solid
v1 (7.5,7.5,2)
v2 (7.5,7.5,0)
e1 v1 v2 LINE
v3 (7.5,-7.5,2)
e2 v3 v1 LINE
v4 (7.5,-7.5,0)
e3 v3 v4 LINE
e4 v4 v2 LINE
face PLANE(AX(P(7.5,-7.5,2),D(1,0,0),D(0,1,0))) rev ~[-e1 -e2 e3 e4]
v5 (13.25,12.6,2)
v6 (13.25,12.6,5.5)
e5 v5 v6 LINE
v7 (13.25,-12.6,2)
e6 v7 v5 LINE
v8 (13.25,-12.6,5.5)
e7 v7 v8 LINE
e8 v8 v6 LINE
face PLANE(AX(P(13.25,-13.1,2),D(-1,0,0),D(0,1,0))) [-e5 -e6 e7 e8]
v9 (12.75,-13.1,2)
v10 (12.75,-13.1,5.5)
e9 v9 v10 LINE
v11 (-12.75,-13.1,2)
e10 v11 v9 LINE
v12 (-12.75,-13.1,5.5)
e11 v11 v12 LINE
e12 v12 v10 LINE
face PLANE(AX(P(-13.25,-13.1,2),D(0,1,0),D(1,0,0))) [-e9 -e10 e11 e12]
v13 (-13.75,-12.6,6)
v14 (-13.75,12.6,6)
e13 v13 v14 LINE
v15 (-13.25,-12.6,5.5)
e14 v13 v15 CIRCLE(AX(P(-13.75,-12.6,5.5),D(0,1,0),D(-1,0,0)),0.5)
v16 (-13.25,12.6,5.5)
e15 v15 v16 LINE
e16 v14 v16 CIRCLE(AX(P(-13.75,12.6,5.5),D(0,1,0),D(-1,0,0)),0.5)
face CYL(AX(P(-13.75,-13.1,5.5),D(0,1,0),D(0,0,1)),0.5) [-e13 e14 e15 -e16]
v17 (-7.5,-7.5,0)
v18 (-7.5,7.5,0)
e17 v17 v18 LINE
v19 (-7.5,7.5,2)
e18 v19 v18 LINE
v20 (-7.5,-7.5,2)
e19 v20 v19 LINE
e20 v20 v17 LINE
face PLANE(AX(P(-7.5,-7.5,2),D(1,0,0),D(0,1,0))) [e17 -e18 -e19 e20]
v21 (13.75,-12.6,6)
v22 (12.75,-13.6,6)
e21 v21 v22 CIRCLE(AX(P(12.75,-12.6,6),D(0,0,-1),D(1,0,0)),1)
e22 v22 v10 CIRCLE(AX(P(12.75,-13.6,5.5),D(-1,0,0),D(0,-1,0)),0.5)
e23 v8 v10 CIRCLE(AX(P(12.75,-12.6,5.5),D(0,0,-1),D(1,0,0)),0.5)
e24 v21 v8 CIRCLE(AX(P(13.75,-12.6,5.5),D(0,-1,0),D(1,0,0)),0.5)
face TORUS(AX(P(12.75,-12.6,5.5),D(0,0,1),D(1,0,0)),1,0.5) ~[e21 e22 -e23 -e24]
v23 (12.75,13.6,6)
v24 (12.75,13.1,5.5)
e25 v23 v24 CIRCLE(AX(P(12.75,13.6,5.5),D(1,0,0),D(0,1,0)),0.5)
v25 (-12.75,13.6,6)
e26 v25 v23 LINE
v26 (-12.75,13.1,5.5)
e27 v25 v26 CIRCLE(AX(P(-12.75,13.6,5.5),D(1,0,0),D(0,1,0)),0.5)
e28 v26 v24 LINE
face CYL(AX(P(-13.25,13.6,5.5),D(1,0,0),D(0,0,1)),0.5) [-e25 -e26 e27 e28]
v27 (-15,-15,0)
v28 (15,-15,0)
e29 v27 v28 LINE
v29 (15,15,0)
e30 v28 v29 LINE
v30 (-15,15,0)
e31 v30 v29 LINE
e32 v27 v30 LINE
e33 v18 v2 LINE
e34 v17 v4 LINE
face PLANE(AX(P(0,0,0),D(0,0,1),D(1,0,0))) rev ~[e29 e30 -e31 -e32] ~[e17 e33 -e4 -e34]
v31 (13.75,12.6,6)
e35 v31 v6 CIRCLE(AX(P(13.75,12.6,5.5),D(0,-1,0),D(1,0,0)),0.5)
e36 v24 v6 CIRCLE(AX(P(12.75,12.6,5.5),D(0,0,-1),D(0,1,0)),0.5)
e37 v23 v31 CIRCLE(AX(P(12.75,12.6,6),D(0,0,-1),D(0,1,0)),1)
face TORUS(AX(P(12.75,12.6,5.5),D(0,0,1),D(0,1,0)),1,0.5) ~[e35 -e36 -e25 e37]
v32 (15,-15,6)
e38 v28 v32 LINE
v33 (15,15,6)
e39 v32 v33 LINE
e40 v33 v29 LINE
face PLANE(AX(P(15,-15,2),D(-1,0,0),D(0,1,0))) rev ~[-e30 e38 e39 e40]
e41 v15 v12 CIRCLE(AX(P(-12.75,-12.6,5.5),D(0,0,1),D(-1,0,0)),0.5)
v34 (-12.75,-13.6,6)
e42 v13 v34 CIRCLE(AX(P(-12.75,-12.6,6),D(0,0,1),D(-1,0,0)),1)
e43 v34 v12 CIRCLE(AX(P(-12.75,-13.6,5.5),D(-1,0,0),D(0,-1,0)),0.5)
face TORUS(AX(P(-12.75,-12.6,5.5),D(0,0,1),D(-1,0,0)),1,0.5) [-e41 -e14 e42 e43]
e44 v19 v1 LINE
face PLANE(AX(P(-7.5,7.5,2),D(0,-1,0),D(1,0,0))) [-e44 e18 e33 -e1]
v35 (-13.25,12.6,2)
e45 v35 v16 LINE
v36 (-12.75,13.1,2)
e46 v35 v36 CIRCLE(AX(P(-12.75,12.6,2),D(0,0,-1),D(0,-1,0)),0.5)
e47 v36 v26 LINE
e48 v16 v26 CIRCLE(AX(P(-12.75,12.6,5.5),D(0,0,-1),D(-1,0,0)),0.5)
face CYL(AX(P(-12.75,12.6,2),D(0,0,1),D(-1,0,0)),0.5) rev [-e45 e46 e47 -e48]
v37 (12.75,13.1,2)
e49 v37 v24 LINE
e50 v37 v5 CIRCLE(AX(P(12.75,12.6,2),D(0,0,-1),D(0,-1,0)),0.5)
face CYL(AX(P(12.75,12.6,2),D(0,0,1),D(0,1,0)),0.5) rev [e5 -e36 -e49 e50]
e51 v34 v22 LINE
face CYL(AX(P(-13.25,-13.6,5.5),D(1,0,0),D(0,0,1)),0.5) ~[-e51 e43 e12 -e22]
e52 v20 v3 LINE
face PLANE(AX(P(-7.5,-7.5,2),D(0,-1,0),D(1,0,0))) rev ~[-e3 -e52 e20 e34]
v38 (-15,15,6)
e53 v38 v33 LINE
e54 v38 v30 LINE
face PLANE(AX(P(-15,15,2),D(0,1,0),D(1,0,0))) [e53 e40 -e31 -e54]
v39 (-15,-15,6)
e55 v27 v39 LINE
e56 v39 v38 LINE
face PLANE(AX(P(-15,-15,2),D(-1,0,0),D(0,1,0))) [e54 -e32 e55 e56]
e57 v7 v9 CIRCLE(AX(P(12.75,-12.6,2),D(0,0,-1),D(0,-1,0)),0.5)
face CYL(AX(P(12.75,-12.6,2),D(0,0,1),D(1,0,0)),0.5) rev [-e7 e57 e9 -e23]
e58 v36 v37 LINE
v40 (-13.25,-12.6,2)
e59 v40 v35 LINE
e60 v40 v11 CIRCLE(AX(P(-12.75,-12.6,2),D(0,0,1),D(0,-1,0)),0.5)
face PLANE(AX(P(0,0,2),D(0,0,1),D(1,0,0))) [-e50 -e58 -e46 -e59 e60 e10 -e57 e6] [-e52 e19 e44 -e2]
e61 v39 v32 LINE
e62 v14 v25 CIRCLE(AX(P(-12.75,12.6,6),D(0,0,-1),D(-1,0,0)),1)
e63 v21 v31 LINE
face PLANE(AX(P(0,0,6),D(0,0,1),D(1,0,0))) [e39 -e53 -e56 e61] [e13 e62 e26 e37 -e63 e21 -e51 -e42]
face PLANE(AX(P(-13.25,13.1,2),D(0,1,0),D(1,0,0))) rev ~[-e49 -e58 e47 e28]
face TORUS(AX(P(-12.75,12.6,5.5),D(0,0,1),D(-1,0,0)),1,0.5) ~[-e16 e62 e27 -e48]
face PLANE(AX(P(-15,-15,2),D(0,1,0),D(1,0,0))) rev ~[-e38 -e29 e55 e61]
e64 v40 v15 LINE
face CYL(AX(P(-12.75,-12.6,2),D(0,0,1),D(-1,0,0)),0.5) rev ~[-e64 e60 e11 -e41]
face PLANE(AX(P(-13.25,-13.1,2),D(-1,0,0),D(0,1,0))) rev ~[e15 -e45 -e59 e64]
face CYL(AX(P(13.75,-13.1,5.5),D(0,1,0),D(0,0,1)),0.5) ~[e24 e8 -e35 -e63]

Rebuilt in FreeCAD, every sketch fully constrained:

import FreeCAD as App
import Part
import Sketcher

V = App.Vector
Q = App.Units.Quantity


def edges_at(feature, points):
    """Names of the edges that pass closest to the given points."""
    edges = feature.Shape.Edges
    near = lambda p: min(range(len(edges)), key=lambda i: edges[i].distToShape(Part.Vertex(*p))[0])
    return sorted({f"Edge{near(p) + 1}" for p in points})


def add_polygon(sketch, points):
    """Adds a closed chain of lines whose ends are joined by coincident constraints."""
    first, n = sketch.GeometryCount, len(points)
    for a, b in zip(points, points[1:] + points[:1]):
        sketch.addGeometry(Part.LineSegment(App.Vector(*a, 0), App.Vector(*b, 0)), False)
    for i in range(n):
        sketch.addConstraint(Sketcher.Constraint("Coincident", first + i, 2, first + (i + 1) % n, 1))

doc = App.newDocument("Part")
body = doc.addObject("PartDesign::Body", "Body")

# Sketch on XY plane
sketch1 = body.newObject("Sketcher::SketchObject", "Sketch")
sketch1.AttachmentSupport = (doc.getObject("XY_Plane"), [""])
sketch1.MapMode = "FlatFace"
add_polygon(sketch1, [(-15, 15), (-15, -15), (15, -15), (15, 15)])  # lines 0-3
sketch1.addConstraint(Sketcher.Constraint("Vertical", 0))
sketch1.addConstraint(Sketcher.Constraint("Horizontal", 1))
sketch1.addConstraint(Sketcher.Constraint("Vertical", 2))
sketch1.addConstraint(Sketcher.Constraint("Horizontal", 3))
sketch1.addConstraint(Sketcher.Constraint("Symmetric", 0, 2, 2, 2, -1, 1))
sketch1.addConstraint(Sketcher.Constraint("Equal", 3, 0))
sketch1.addConstraint(Sketcher.Constraint("DistanceX", 1, 1, 1, 2, Q("30 mm")))
pad1 = body.newObject("PartDesign::Pad", "Pad")
pad1.Profile = sketch1
pad1.Length = 2

# Sketch on XY plane
sketch2 = body.newObject("Sketcher::SketchObject", "Sketch001")
sketch2.AttachmentSupport = (doc.getObject("XY_Plane"), [""])
sketch2.MapMode = "FlatFace"
sketch2.AttachmentOffset = App.Placement(V(0, 0, 2), App.Rotation())
add_polygon(sketch2, [(-15, 15), (-15, -15), (15, -15), (15, 15)])  # lines 0-3
add_polygon(sketch2, [(13, -13), (-13, -13), (-13, 13), (13, 13)])  # lines 4-7
sketch2.addConstraint(Sketcher.Constraint("Vertical", 0))
sketch2.addConstraint(Sketcher.Constraint("Horizontal", 1))
sketch2.addConstraint(Sketcher.Constraint("Vertical", 2))
sketch2.addConstraint(Sketcher.Constraint("Horizontal", 3))
sketch2.addConstraint(Sketcher.Constraint("Horizontal", 4))
sketch2.addConstraint(Sketcher.Constraint("Vertical", 5))
sketch2.addConstraint(Sketcher.Constraint("Horizontal", 6))
sketch2.addConstraint(Sketcher.Constraint("Vertical", 7))
sketch2.addConstraint(Sketcher.Constraint("Symmetric", 0, 2, 2, 2, -1, 1))
sketch2.addConstraint(Sketcher.Constraint("Symmetric", 4, 2, 6, 2, -1, 1))
sketch2.addConstraint(Sketcher.Constraint("Equal", 3, 0))
sketch2.addConstraint(Sketcher.Constraint("DistanceX", 1, 1, 1, 2, Q("30 mm")))
sketch2.addConstraint(Sketcher.Constraint("DistanceX", 4, 2, 4, 1, Q("26.5 mm")))
sketch2.addConstraint(Sketcher.Constraint("DistanceY", 5, 1, 5, 2, Q("26.2 mm")))
pad2 = body.newObject("PartDesign::Pad", "Pad001")
pad2.Profile = sketch2
pad2.Length = 4
doc.recompute()

fillet = body.newObject("PartDesign::Fillet", "Fillet")
fillet.Base = (pad2, edges_at(pad2, [
    (-13.25, 0, 6),
    (0, 13.1, 6),
    (13.25, 0, 6),
    (0, -13.1, 6),
    (-13.25, 13.1, 4),
    (-13.25, -13.1, 4),
    (13.25, 13.1, 4),
    (13.25, -13.1, 4),
]))
fillet.Radius = 0.5

# Sketch on XY plane
sketch3 = body.newObject("Sketcher::SketchObject", "Sketch002")
sketch3.AttachmentSupport = (doc.getObject("XY_Plane"), [""])
sketch3.MapMode = "FlatFace"
sketch3.AttachmentOffset = App.Placement(V(0, 0, 2), App.Rotation())
add_polygon(sketch3, [(-8, 8), (-8, -8), (8, -8), (8, 8)])  # lines 0-3
sketch3.addConstraint(Sketcher.Constraint("Vertical", 0))
sketch3.addConstraint(Sketcher.Constraint("Horizontal", 1))
sketch3.addConstraint(Sketcher.Constraint("Vertical", 2))
sketch3.addConstraint(Sketcher.Constraint("Horizontal", 3))
sketch3.addConstraint(Sketcher.Constraint("Symmetric", 0, 2, 2, 2, -1, 1))
sketch3.addConstraint(Sketcher.Constraint("Equal", 3, 0))
sketch3.addConstraint(Sketcher.Constraint("DistanceX", 1, 1, 1, 2, Q("15 mm")))
pocket1 = body.newObject("PartDesign::Pocket", "Pocket")
pocket1.Profile = sketch3
pocket1.Length = 25

doc.recompute()
